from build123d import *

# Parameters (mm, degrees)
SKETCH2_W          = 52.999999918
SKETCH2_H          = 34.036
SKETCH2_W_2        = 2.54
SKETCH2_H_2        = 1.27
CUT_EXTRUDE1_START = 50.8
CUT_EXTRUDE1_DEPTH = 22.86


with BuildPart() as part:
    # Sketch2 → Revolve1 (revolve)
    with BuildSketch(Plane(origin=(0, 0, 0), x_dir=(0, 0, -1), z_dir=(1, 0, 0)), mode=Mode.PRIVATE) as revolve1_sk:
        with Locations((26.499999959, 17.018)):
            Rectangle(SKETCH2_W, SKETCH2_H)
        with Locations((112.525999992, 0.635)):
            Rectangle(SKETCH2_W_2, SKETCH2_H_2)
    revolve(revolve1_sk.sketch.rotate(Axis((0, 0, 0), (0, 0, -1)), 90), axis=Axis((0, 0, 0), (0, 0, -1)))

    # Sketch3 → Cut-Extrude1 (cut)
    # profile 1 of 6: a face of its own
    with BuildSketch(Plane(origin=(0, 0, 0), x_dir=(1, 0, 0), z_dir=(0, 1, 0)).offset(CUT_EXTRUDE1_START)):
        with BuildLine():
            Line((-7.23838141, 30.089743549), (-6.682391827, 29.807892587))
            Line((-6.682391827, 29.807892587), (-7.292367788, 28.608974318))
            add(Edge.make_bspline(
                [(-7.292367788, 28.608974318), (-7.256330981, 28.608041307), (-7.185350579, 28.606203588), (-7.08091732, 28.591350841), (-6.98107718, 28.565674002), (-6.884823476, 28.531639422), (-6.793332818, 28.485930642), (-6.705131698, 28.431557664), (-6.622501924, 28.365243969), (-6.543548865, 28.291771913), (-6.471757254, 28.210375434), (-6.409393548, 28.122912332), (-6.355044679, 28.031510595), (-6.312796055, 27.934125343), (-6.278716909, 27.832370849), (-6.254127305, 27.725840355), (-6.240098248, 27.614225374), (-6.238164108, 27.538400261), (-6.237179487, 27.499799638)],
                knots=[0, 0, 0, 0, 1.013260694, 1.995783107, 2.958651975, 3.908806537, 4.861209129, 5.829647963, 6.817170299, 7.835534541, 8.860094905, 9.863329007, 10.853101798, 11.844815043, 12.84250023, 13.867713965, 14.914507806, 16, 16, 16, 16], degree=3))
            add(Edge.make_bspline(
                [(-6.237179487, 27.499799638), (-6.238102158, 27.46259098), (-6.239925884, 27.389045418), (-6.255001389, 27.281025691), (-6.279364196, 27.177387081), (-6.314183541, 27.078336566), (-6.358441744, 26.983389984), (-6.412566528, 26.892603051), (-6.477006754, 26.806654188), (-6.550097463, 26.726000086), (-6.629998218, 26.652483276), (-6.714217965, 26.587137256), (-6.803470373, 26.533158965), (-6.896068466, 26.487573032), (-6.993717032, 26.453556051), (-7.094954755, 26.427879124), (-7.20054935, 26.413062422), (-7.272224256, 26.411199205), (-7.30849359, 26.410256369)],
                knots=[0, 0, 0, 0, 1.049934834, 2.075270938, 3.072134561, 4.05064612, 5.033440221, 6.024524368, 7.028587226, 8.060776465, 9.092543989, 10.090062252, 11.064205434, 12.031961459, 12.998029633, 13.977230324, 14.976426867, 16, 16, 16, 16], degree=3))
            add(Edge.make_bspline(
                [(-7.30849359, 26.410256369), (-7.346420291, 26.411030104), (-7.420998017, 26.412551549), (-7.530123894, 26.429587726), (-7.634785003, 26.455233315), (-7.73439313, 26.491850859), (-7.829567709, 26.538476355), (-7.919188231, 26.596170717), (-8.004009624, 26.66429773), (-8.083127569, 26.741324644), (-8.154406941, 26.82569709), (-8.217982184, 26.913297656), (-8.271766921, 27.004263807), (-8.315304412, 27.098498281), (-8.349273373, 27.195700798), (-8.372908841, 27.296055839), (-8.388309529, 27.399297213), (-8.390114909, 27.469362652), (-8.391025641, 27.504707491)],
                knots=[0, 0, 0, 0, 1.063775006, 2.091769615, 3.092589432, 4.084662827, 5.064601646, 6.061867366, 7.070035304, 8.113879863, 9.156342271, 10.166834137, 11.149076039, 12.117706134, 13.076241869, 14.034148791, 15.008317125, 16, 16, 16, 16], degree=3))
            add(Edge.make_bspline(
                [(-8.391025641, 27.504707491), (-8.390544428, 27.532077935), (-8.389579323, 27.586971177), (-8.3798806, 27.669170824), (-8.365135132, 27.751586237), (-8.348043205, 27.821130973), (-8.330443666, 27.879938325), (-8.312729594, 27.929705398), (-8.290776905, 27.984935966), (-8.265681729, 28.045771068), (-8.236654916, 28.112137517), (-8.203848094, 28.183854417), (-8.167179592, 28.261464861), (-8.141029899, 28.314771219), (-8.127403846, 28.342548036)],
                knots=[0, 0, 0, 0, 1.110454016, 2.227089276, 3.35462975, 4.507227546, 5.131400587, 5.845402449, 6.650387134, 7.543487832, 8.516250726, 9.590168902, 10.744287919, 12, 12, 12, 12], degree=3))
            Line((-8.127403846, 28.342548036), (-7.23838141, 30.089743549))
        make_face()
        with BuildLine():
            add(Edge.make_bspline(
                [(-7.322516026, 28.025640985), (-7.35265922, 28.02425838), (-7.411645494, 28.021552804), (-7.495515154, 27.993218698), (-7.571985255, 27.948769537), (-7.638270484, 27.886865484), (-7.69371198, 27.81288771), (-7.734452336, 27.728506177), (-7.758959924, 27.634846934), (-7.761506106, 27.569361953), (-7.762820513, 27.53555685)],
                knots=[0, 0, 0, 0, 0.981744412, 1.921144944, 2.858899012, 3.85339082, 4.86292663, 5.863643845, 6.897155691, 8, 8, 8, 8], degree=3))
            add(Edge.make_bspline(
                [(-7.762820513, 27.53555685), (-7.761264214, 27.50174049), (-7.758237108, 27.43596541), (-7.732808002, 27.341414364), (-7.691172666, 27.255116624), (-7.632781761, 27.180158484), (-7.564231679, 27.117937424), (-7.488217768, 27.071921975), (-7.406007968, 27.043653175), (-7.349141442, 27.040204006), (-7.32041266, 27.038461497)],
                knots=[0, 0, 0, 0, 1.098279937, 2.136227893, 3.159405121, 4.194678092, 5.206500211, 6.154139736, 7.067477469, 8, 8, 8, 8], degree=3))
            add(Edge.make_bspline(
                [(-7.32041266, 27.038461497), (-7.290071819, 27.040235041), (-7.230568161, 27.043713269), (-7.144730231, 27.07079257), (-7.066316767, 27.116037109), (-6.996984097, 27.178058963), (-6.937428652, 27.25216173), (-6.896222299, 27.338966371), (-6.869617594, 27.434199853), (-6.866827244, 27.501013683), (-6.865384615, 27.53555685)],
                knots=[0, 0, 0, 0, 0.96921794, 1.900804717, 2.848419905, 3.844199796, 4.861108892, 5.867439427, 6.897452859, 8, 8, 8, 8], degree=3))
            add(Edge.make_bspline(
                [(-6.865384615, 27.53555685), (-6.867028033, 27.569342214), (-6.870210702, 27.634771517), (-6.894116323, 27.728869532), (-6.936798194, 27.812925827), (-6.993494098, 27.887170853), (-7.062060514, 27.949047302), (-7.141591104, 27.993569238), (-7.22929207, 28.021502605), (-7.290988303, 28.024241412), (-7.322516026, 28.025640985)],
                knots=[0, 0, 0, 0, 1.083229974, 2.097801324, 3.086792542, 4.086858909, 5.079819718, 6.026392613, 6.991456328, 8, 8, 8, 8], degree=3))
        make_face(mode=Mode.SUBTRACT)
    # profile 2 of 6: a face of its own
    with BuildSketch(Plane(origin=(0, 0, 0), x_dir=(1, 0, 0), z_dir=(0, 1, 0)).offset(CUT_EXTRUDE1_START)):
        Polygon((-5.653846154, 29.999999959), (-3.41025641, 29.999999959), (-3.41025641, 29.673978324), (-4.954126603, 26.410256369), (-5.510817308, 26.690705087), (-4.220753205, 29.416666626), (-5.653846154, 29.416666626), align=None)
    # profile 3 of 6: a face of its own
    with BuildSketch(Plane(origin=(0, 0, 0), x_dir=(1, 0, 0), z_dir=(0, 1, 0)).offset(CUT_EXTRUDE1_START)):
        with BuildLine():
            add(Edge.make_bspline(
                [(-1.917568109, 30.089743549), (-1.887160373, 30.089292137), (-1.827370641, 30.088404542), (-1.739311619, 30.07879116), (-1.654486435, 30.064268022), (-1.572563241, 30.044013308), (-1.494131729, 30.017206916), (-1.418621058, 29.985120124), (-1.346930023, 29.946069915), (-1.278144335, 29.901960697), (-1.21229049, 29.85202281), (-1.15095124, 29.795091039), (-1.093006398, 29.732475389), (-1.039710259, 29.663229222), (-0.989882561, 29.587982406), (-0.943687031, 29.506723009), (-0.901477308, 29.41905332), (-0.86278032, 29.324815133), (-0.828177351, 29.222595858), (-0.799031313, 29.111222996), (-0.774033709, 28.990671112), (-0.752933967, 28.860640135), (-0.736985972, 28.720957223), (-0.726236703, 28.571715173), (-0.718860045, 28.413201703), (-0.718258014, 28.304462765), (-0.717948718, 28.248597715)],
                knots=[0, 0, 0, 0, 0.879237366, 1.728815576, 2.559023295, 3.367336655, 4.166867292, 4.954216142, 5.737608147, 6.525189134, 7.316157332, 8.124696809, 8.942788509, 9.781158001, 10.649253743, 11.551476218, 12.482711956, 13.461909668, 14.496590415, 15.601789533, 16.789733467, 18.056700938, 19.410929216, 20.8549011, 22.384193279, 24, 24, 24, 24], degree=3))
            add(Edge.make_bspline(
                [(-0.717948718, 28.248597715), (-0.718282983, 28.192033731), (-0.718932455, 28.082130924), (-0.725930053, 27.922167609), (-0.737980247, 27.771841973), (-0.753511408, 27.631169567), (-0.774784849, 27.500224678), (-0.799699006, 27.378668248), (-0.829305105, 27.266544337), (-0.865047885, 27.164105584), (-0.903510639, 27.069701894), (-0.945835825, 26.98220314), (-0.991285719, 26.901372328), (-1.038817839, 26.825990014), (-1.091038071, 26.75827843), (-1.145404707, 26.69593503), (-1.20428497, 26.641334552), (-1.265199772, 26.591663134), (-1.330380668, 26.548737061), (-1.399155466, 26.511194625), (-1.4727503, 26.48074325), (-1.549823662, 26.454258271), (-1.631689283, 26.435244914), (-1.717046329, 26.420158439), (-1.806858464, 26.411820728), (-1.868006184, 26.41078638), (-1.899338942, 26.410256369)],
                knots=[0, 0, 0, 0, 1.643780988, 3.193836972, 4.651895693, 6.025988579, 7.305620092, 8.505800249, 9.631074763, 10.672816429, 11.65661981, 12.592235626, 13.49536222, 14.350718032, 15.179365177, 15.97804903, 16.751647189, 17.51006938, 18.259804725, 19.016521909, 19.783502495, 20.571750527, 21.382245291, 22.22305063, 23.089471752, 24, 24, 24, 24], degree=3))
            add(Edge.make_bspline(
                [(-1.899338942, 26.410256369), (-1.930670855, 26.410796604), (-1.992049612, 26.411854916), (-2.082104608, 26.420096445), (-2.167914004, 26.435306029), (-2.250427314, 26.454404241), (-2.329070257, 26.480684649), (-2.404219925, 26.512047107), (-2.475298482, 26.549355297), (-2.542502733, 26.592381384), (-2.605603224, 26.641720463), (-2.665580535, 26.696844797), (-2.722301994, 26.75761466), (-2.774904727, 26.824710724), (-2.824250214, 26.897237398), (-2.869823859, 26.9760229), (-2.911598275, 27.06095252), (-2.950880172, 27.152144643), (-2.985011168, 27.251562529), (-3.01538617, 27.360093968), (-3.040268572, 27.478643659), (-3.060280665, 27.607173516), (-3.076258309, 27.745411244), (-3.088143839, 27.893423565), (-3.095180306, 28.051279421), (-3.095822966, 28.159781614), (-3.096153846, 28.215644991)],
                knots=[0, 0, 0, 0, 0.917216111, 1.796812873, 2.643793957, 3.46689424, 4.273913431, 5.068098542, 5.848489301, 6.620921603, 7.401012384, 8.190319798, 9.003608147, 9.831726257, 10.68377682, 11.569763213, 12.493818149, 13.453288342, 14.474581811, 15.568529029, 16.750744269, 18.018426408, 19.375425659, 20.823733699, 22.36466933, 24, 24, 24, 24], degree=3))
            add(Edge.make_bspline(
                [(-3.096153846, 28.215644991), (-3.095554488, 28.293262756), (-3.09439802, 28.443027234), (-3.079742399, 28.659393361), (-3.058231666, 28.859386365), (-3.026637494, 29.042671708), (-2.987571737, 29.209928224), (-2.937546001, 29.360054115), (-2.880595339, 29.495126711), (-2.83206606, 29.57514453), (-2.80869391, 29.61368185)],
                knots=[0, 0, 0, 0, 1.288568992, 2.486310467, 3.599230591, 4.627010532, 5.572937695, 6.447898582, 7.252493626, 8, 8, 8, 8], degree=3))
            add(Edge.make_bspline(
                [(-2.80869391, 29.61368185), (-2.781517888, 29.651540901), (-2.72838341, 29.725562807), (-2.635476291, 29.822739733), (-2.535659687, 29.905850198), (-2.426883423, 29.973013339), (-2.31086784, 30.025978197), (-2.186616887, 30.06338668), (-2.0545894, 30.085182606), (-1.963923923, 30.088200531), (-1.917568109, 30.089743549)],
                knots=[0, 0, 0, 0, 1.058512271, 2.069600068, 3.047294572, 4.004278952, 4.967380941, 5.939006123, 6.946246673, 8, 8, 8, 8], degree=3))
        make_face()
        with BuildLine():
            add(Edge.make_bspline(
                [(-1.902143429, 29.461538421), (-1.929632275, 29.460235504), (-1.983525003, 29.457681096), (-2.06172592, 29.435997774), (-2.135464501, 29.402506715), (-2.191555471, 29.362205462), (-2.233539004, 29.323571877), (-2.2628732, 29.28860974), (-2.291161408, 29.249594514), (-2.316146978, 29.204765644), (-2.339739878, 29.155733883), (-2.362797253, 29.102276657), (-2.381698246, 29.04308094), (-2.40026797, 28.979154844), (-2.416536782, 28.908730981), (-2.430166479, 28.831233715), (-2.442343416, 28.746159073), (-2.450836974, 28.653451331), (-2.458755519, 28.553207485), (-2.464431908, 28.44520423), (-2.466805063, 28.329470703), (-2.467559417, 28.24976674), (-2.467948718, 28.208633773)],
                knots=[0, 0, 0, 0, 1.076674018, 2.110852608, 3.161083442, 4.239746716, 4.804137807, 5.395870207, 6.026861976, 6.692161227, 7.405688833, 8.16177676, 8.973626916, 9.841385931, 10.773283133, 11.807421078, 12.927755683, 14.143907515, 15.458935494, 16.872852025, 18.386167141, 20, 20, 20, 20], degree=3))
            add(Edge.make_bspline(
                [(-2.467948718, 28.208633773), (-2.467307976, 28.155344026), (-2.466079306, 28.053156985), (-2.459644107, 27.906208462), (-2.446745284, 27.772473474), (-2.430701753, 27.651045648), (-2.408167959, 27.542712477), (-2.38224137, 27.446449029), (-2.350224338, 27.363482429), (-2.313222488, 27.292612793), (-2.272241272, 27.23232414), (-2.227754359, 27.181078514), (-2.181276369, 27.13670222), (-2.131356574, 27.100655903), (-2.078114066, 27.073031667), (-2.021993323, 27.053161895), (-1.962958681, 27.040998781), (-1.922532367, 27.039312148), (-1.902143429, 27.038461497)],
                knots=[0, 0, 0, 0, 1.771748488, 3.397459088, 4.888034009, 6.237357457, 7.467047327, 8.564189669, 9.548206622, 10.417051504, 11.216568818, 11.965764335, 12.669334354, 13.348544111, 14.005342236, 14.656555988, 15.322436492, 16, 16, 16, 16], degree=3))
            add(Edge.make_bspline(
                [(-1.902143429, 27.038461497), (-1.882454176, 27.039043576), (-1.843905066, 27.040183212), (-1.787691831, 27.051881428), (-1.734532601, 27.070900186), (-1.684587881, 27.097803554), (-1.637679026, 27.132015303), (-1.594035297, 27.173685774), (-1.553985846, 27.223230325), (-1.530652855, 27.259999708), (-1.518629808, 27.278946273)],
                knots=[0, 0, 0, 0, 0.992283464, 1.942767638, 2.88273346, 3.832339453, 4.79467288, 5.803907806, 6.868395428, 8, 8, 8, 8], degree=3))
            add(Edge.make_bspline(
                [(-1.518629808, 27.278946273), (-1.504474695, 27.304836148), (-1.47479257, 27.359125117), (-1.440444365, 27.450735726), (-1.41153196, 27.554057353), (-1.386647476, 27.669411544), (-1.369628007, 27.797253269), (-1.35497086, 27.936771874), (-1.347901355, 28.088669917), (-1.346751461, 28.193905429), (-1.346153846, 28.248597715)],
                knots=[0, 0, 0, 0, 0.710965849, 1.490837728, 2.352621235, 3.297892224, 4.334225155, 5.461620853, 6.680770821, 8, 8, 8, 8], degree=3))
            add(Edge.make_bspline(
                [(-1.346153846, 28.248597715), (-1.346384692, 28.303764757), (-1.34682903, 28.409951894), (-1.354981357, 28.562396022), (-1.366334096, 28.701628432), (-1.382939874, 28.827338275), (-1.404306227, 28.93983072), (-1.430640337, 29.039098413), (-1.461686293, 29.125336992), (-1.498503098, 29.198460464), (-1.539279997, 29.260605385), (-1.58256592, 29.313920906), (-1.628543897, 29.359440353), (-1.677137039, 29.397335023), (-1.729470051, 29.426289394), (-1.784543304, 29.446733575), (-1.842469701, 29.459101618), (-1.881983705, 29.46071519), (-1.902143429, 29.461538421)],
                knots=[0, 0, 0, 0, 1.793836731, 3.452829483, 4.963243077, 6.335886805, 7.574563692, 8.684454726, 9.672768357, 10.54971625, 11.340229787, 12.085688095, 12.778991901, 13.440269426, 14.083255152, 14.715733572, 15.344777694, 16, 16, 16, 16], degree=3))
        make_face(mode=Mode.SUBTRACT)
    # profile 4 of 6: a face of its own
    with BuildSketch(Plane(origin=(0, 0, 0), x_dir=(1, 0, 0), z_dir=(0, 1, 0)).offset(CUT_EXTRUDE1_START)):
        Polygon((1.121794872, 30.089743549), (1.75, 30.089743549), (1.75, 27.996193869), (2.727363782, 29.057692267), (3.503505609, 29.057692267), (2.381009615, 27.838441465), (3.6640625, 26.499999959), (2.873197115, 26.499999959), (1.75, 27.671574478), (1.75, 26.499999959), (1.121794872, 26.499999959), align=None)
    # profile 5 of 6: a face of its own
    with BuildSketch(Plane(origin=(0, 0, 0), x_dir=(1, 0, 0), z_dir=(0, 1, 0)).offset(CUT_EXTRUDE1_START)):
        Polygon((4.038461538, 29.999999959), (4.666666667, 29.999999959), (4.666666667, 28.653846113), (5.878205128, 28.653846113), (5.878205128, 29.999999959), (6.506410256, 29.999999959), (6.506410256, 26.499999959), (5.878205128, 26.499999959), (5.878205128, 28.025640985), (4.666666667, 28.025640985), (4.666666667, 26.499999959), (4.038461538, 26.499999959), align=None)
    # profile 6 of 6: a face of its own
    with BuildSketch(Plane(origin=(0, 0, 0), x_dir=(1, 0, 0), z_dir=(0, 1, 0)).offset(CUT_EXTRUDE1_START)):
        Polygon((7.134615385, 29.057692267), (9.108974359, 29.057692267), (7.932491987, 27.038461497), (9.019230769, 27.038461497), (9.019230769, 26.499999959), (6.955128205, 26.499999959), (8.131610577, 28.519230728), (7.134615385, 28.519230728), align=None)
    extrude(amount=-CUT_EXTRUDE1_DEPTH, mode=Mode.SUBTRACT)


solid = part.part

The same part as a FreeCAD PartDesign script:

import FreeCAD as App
import Part
import Sketcher

V = App.Vector
Q = App.Units.Quantity


def add_polygon(sketch, points):
    """Adds a closed chain of lines whose ends are joined by coincident constraints."""
    first, n = sketch.GeometryCount, len(points)
    for a, b in zip(points, points[1:] + points[:1]):
        sketch.addGeometry(Part.LineSegment(App.Vector(*a, 0), App.Vector(*b, 0)), False)
    for i in range(n):
        sketch.addConstraint(Sketcher.Constraint("Coincident", first + i, 2, first + (i + 1) % n, 1))

doc = App.newDocument("Part")
body = doc.addObject("PartDesign::Body", "Body")
body.AllowCompound = True

# Sketch on YZ plane
sketch1 = doc.addObject("Sketcher::SketchObject", "Sketch")
body.addObject(sketch1)
sketch1.AttachmentSupport = (doc.YZ_Plane, [""])
sketch1.MapMode = "FlatFace"
add_polygon(sketch1, [(34.036, 0), (0, 0), (0, -53), (34.036, -53)])  # lines 0-3
add_polygon(sketch1, [(1.27, -111.256), (0, -111.256), (0, -113.796), (1.27, -113.796)])  # lines 4-7
sketch1.addConstraint([
    Sketcher.Constraint("Horizontal", 0),
    Sketcher.Constraint("Vertical", 1),
    Sketcher.Constraint("Horizontal", 2),
    Sketcher.Constraint("Vertical", 3),
    Sketcher.Constraint("Horizontal", 4),
    Sketcher.Constraint("Vertical", 5),
    Sketcher.Constraint("Horizontal", 6),
    Sketcher.Constraint("Vertical", 7),
    Sketcher.Constraint("Coincident", 0, 2, -1, 1),
    Sketcher.Constraint("PointOnObject", 4, 2, -2),
    Sketcher.Constraint("DistanceY", 5, 2, 5, 1, Q("0.1 in")),
    Sketcher.Constraint("DistanceX", 0, 2, 0, 1, Q("1.34 in")),
    Sketcher.Constraint("DistanceX", 4, 2, 4, 1, Q("0.05 in")),
    Sketcher.Constraint("DistanceY", 1, 2, 1, 1, Q("53 mm")),
    Sketcher.Constraint("DistanceY", 4, 2, -1, 1, Q("111.256 mm")),
])
revolution = doc.addObject("PartDesign::Revolution", "Revolution")
body.addObject(revolution)
revolution.Profile = sketch1
revolution.ReferenceAxis = (sketch1, ["V_Axis"])
revolution.Angle = 360

# Sketch on XZ plane
sketch2 = doc.addObject("Sketcher::SketchObject", "Sketch001")
body.addObject(sketch2)
sketch2.AttachmentSupport = (doc.XZ_Plane, [""])
sketch2.MapMode = "FlatFace"
sketch2.AttachmentOffset = App.Placement(V(0, 0, -2 * 25.4), App.Rotation())
sketch2.addGeometry(Part.LineSegment(V(-6.682392, -29.807893, 0), V(-7.238381, -30.089744, 0)), False)  # 0
sketch2.addGeometry(Part.LineSegment(V(-7.238381, -30.089744, 0), V(-8.127404, -28.342548, 0)), False)  # 1
sketch2.addGeometry(Part.BSplineCurve([V(-8.391026, -27.504707, 0), V(-8.390544, -27.532078, 0), V(-8.389579, -27.586971, 0), V(-8.379881, -27.669171, 0), V(-8.365135, -27.751586, 0), V(-8.348043, -27.821131, 0), V(-8.330444, -27.879938, 0), V(-8.31273, -27.929705, 0), V(-8.290777, -27.984936, 0), V(-8.265682, -28.045771, 0), V(-8.236655, -28.112138, 0), V(-8.203848, -28.183854, 0), V(-8.16718, -28.261465, 0), V(-8.14103, -28.314771, 0), V(-8.127404, -28.342548, 0)], [4, 1, 1, 1, 1, 1, 1, 1, 1, 1, 1, 1, 4], [0, 1.110454016, 2.227089276, 3.35462975, 4.507227546, 5.131400587, 5.845402449, 6.650387134, 7.543487832, 8.516250726, 9.590168902, 10.744287919, 12], False, 3, [1, 1, 1, 1, 1, 1, 1, 1, 1, 1, 1, 1, 1, 1, 1], False), False)  # 2
sketch2.addGeometry(Part.BSplineCurve([V(-7.308494, -26.410256, 0), V(-7.34642, -26.41103, 0), V(-7.420998, -26.412552, 0), V(-7.530124, -26.429588, 0), V(-7.634785, -26.455233, 0), V(-7.734393, -26.491851, 0), V(-7.829568, -26.538476, 0), V(-7.919188, -26.596171, 0), V(-8.00401, -26.664298, 0), V(-8.083128, -26.741325, 0), V(-8.154407, -26.825697, 0), V(-8.217982, -26.913298, 0), V(-8.271767, -27.004264, 0), V(-8.315304, -27.098498, 0), V(-8.349273, -27.195701, 0), V(-8.372909, -27.296056, 0), V(-8.38831, -27.399297, 0), V(-8.390115, -27.469363, 0), V(-8.391026, -27.504707, 0)], [4, 1, 1, 1, 1, 1, 1, 1, 1, 1, 1, 1, 1, 1, 1, 1, 4], [0, 1.063775006, 2.091769615, 3.092589432, 4.084662827, 5.064601646, 6.061867366, 7.070035304, 8.113879863, 9.156342271, 10.166834137, 11.149076039, 12.117706134, 13.076241869, 14.034148791, 15.008317125, 16], False, 3, [1, 1, 1, 1, 1, 1, 1, 1, 1, 1, 1, 1, 1, 1, 1, 1, 1, 1, 1], False), False)  # 3
sketch2.addGeometry(Part.BSplineCurve([V(-6.237179, -27.4998, 0), V(-6.238102, -27.462591, 0), V(-6.239926, -27.389045, 0), V(-6.255001, -27.281026, 0), V(-6.279364, -27.177387, 0), V(-6.314184, -27.078337, 0), V(-6.358442, -26.98339, 0), V(-6.412567, -26.892603, 0), V(-6.477007, -26.806654, 0), V(-6.550097, -26.726, 0), V(-6.629998, -26.652483, 0), V(-6.714218, -26.587137, 0), V(-6.80347, -26.533159, 0), V(-6.896068, -26.487573, 0), V(-6.993717, -26.453556, 0), V(-7.094955, -26.427879, 0), V(-7.200549, -26.413062, 0), V(-7.272224, -26.411199, 0), V(-7.308494, -26.410256, 0)], [4, 1, 1, 1, 1, 1, 1, 1, 1, 1, 1, 1, 1, 1, 1, 1, 4], [0, 1.049934834, 2.075270938, 3.072134561, 4.05064612, 5.033440221, 6.024524368, 7.028587226, 8.060776465, 9.092543989, 10.090062252, 11.064205434, 12.031961459, 12.998029633, 13.977230324, 14.976426867, 16], False, 3, [1, 1, 1, 1, 1, 1, 1, 1, 1, 1, 1, 1, 1, 1, 1, 1, 1, 1, 1], False), False)  # 4
sketch2.addGeometry(Part.BSplineCurve([V(-7.292368, -28.608974, 0), V(-7.256331, -28.608041, 0), V(-7.185351, -28.606204, 0), V(-7.080917, -28.591351, 0), V(-6.981077, -28.565674, 0), V(-6.884823, -28.531639, 0), V(-6.793333, -28.485931, 0), V(-6.705132, -28.431558, 0), V(-6.622502, -28.365244, 0), V(-6.543549, -28.291772, 0), V(-6.471757, -28.210375, 0), V(-6.409394, -28.122912, 0), V(-6.355045, -28.031511, 0), V(-6.312796, -27.934125, 0), V(-6.278717, -27.832371, 0), V(-6.254127, -27.72584, 0), V(-6.240098, -27.614225, 0), V(-6.238164, -27.5384, 0), V(-6.237179, -27.4998, 0)], [4, 1, 1, 1, 1, 1, 1, 1, 1, 1, 1, 1, 1, 1, 1, 1, 4], [0, 1.013260694, 1.995783107, 2.958651975, 3.908806537, 4.861209129, 5.829647963, 6.817170299, 7.835534541, 8.860094905, 9.863329007, 10.853101798, 11.844815043, 12.84250023, 13.867713965, 14.914507806, 16], False, 3, [1, 1, 1, 1, 1, 1, 1, 1, 1, 1, 1, 1, 1, 1, 1, 1, 1, 1, 1], False), False)  # 5
sketch2.addGeometry(Part.LineSegment(V(-7.292368, -28.608974, 0), V(-6.682392, -29.807893, 0)), False)  # 6
sketch2.addGeometry(Part.BSplineCurve([V(-6.865385, -27.535557, 0), V(-6.867028, -27.569342, 0), V(-6.870211, -27.634772, 0), V(-6.894116, -27.72887, 0), V(-6.936798, -27.812926, 0), V(-6.993494, -27.887171, 0), V(-7.062061, -27.949047, 0), V(-7.141591, -27.993569, 0), V(-7.229292, -28.021503, 0), V(-7.290988, -28.024241, 0), V(-7.322516, -28.025641, 0)], [4, 1, 1, 1, 1, 1, 1, 1, 4], [0, 1.083229974, 2.097801324, 3.086792542, 4.086858909, 5.079819718, 6.026392613, 6.991456328, 8], False, 3, [1, 1, 1, 1, 1, 1, 1, 1, 1, 1, 1], False), False)  # 7
sketch2.addGeometry(Part.BSplineCurve([V(-7.320413, -27.038461, 0), V(-7.290072, -27.040235, 0), V(-7.230568, -27.043713, 0), V(-7.14473, -27.070793, 0), V(-7.066317, -27.116037, 0), V(-6.996984, -27.178059, 0), V(-6.937429, -27.252162, 0), V(-6.896222, -27.338966, 0), V(-6.869618, -27.4342, 0), V(-6.866827, -27.501014, 0), V(-6.865385, -27.535557, 0)], [4, 1, 1, 1, 1, 1, 1, 1, 4], [0, 0.96921794, 1.900804717, 2.848419905, 3.844199796, 4.861108892, 5.867439427, 6.897452859, 8], False, 3, [1, 1, 1, 1, 1, 1, 1, 1, 1, 1, 1], False), False)  # 8
sketch2.addGeometry(Part.BSplineCurve([V(-7.762821, -27.535557, 0), V(-7.761264, -27.50174, 0), V(-7.758237, -27.435965, 0), V(-7.732808, -27.341414, 0), V(-7.691173, -27.255117, 0), V(-7.632782, -27.180158, 0), V(-7.564232, -27.117937, 0), V(-7.488218, -27.071922, 0), V(-7.406008, -27.043653, 0), V(-7.349141, -27.040204, 0), V(-7.320413, -27.038461, 0)], [4, 1, 1, 1, 1, 1, 1, 1, 4], [0, 1.098279937, 2.136227893, 3.159405121, 4.194678092, 5.206500211, 6.154139736, 7.067477469, 8], False, 3, [1, 1, 1, 1, 1, 1, 1, 1, 1, 1, 1], False), False)  # 9
sketch2.addGeometry(Part.BSplineCurve([V(-7.322516, -28.025641, 0), V(-7.352659, -28.024258, 0), V(-7.411645, -28.021553, 0), V(-7.495515, -27.993219, 0), V(-7.571985, -27.94877, 0), V(-7.63827, -27.886865, 0), V(-7.693712, -27.812888, 0), V(-7.734452, -27.728506, 0), V(-7.75896, -27.634847, 0), V(-7.761506, -27.569362, 0), V(-7.762821, -27.535557, 0)], [4, 1, 1, 1, 1, 1, 1, 1, 4], [0, 0.981744412, 1.921144944, 2.858899012, 3.85339082, 4.86292663, 5.863643845, 6.897155691, 8], False, 3, [1, 1, 1, 1, 1, 1, 1, 1, 1, 1, 1], False), False)  # 10
add_polygon(sketch2, [(-3.410256, -30), (-5.653846, -30), (-5.653846, -29.416667), (-4.220753, -29.416667), (-5.510817, -26.690705), (-4.954127, -26.410256), (-3.410256, -29.673978)])  # lines 11-17
sketch2.addGeometry(Part.BSplineCurve([V(-1.917568, -30.089744, 0), V(-1.88716, -30.089292, 0), V(-1.827371, -30.088405, 0), V(-1.739312, -30.078791, 0), V(-1.654486, -30.064268, 0), V(-1.572563, -30.044013, 0), V(-1.494132, -30.017207, 0), V(-1.418621, -29.98512, 0), V(-1.34693, -29.94607, 0), V(-1.278144, -29.901961, 0), V(-1.21229, -29.852023, 0), V(-1.150951, -29.795091, 0), V(-1.093006, -29.732475, 0), V(-1.03971, -29.663229, 0), V(-0.989883, -29.587982, 0), V(-0.943687, -29.506723, 0), V(-0.901477, -29.419053, 0), V(-0.86278, -29.324815, 0), V(-0.828177, -29.222596, 0), V(-0.799031, -29.111223, 0), V(-0.774034, -28.990671, 0), V(-0.752934, -28.86064, 0), V(-0.736986, -28.720957, 0), V(-0.726237, -28.571715, 0), V(-0.71886, -28.413202, 0), V(-0.718258, -28.304463, 0), V(-0.717949, -28.248598, 0)], [4, 1, 1, 1, 1, 1, 1, 1, 1, 1, 1, 1, 1, 1, 1, 1, 1, 1, 1, 1, 1, 1, 1, 1, 4], [0, 0.879237366, 1.728815576, 2.559023295, 3.367336655, 4.166867292, 4.954216142, 5.737608147, 6.525189134, 7.316157332, 8.124696809, 8.942788509, 9.781158001, 10.649253743, 11.551476218, 12.482711956, 13.461909668, 14.496590415, 15.601789533, 16.789733467, 18.056700938, 19.410929216, 20.8549011, 22.384193279, 24], False, 3, [1, 1, 1, 1, 1, 1, 1, 1, 1, 1, 1, 1, 1, 1, 1, 1, 1, 1, 1, 1, 1, 1, 1, 1, 1, 1, 1], False), False)  # 18
sketch2.addGeometry(Part.BSplineCurve([V(-2.808694, -29.613682, 0), V(-2.781518, -29.651541, 0), V(-2.728383, -29.725563, 0), V(-2.635476, -29.82274, 0), V(-2.53566, -29.90585, 0), V(-2.426883, -29.973013, 0), V(-2.310868, -30.025978, 0), V(-2.186617, -30.063387, 0), V(-2.054589, -30.085183, 0), V(-1.963924, -30.088201, 0), V(-1.917568, -30.089744, 0)], [4, 1, 1, 1, 1, 1, 1, 1, 4], [0, 1.058512271, 2.069600068, 3.047294572, 4.004278952, 4.967380941, 5.939006123, 6.946246673, 8], False, 3, [1, 1, 1, 1, 1, 1, 1, 1, 1, 1, 1], False), False)  # 19
sketch2.addGeometry(Part.BSplineCurve([V(-3.096154, -28.215645, 0), V(-3.095554, -28.293263, 0), V(-3.094398, -28.443027, 0), V(-3.079742, -28.659393, 0), V(-3.058232, -28.859386, 0), V(-3.026637, -29.042672, 0), V(-2.987572, -29.209928, 0), V(-2.937546, -29.360054, 0), V(-2.880595, -29.495127, 0), V(-2.832066, -29.575145, 0), V(-2.808694, -29.613682, 0)], [4, 1, 1, 1, 1, 1, 1, 1, 4], [0, 1.288568992, 2.486310467, 3.599230591, 4.627010532, 5.572937695, 6.447898582, 7.252493626, 8], False, 3, [1, 1, 1, 1, 1, 1, 1, 1, 1, 1, 1], False), False)  # 20
sketch2.addGeometry(Part.BSplineCurve([V(-1.899339, -26.410256, 0), V(-1.930671, -26.410797, 0), V(-1.99205, -26.411855, 0), V(-2.082105, -26.420096, 0), V(-2.167914, -26.435306, 0), V(-2.250427, -26.454404, 0), V(-2.32907, -26.480685, 0), V(-2.40422, -26.512047, 0), V(-2.475298, -26.549355, 0), V(-2.542503, -26.592381, 0), V(-2.605603, -26.64172, 0), V(-2.665581, -26.696845, 0), V(-2.722302, -26.757615, 0), V(-2.774905, -26.824711, 0), V(-2.82425, -26.897237, 0), V(-2.869824, -26.976023, 0), V(-2.911598, -27.060953, 0), V(-2.95088, -27.152145, 0), V(-2.985011, -27.251563, 0), V(-3.015386, -27.360094, 0), V(-3.040269, -27.478644, 0), V(-3.060281, -27.607174, 0), V(-3.076258, -27.745411, 0), V(-3.088144, -27.893424, 0), V(-3.09518, -28.051279, 0), V(-3.095823, -28.159782, 0), V(-3.096154, -28.215645, 0)], [4, 1, 1, 1, 1, 1, 1, 1, 1, 1, 1, 1, 1, 1, 1, 1, 1, 1, 1, 1, 1, 1, 1, 1, 4], [0, 0.917216111, 1.796812873, 2.643793957, 3.46689424, 4.273913431, 5.068098542, 5.848489301, 6.620921603, 7.401012384, 8.190319798, 9.003608147, 9.831726257, 10.68377682, 11.569763213, 12.493818149, 13.453288342, 14.474581811, 15.568529029, 16.750744269, 18.018426408, 19.375425659, 20.823733699, 22.36466933, 24], False, 3, [1, 1, 1, 1, 1, 1, 1, 1, 1, 1, 1, 1, 1, 1, 1, 1, 1, 1, 1, 1, 1, 1, 1, 1, 1, 1, 1], False), False)  # 21
sketch2.addGeometry(Part.BSplineCurve([V(-0.717949, -28.248598, 0), V(-0.718283, -28.192034, 0), V(-0.718932, -28.082131, 0), V(-0.72593, -27.922168, 0), V(-0.73798, -27.771842, 0), V(-0.753511, -27.63117, 0), V(-0.774785, -27.500225, 0), V(-0.799699, -27.378668, 0), V(-0.829305, -27.266544, 0), V(-0.865048, -27.164106, 0), V(-0.903511, -27.069702, 0), V(-0.945836, -26.982203, 0), V(-0.991286, -26.901372, 0), V(-1.038818, -26.82599, 0), V(-1.091038, -26.758278, 0), V(-1.145405, -26.695935, 0), V(-1.204285, -26.641335, 0), V(-1.2652, -26.591663, 0), V(-1.330381, -26.548737, 0), V(-1.399155, -26.511195, 0), V(-1.47275, -26.480743, 0), V(-1.549824, -26.454258, 0), V(-1.631689, -26.435245, 0), V(-1.717046, -26.420158, 0), V(-1.806858, -26.411821, 0), V(-1.868006, -26.410786, 0), V(-1.899339, -26.410256, 0)], [4, 1, 1, 1, 1, 1, 1, 1, 1, 1, 1, 1, 1, 1, 1, 1, 1, 1, 1, 1, 1, 1, 1, 1, 4], [0, 1.643780988, 3.193836972, 4.651895693, 6.025988579, 7.305620092, 8.505800249, 9.631074763, 10.672816429, 11.65661981, 12.592235626, 13.49536222, 14.350718032, 15.179365177, 15.97804903, 16.751647189, 17.51006938, 18.259804725, 19.016521909, 19.783502495, 20.571750527, 21.382245291, 22.22305063, 23.089471752, 24], False, 3, [1, 1, 1, 1, 1, 1, 1, 1, 1, 1, 1, 1, 1, 1, 1, 1, 1, 1, 1, 1, 1, 1, 1, 1, 1, 1, 1], False), False)  # 22
sketch2.addGeometry(Part.BSplineCurve([V(-1.346154, -28.248598, 0), V(-1.346385, -28.303765, 0), V(-1.346829, -28.409952, 0), V(-1.354981, -28.562396, 0), V(-1.366334, -28.701628, 0), V(-1.38294, -28.827338, 0), V(-1.404306, -28.939831, 0), V(-1.43064, -29.039098, 0), V(-1.461686, -29.125337, 0), V(-1.498503, -29.19846, 0), V(-1.53928, -29.260605, 0), V(-1.582566, -29.313921, 0), V(-1.628544, -29.35944, 0), V(-1.677137, -29.397335, 0), V(-1.72947, -29.426289, 0), V(-1.784543, -29.446734, 0), V(-1.84247, -29.459102, 0), V(-1.881984, -29.460715, 0), V(-1.902143, -29.461538, 0)], [4, 1, 1, 1, 1, 1, 1, 1, 1, 1, 1, 1, 1, 1, 1, 1, 4], [0, 1.793836731, 3.452829483, 4.963243077, 6.335886805, 7.574563692, 8.684454726, 9.672768357, 10.54971625, 11.340229787, 12.085688095, 12.778991901, 13.440269426, 14.083255152, 14.715733572, 15.344777694, 16], False, 3, [1, 1, 1, 1, 1, 1, 1, 1, 1, 1, 1, 1, 1, 1, 1, 1, 1, 1, 1], False), False)  # 23
sketch2.addGeometry(Part.BSplineCurve([V(-1.51863, -27.278946, 0), V(-1.504475, -27.304836, 0), V(-1.474793, -27.359125, 0), V(-1.440444, -27.450736, 0), V(-1.411532, -27.554057, 0), V(-1.386647, -27.669412, 0), V(-1.369628, -27.797253, 0), V(-1.354971, -27.936772, 0), V(-1.347901, -28.08867, 0), V(-1.346751, -28.193905, 0), V(-1.346154, -28.248598, 0)], [4, 1, 1, 1, 1, 1, 1, 1, 4], [0, 0.710965849, 1.490837728, 2.352621235, 3.297892224, 4.334225155, 5.461620853, 6.680770821, 8], False, 3, [1, 1, 1, 1, 1, 1, 1, 1, 1, 1, 1], False), False)  # 24
sketch2.addGeometry(Part.BSplineCurve([V(-1.902143, -27.038461, 0), V(-1.882454, -27.039044, 0), V(-1.843905, -27.040183, 0), V(-1.787692, -27.051881, 0), V(-1.734533, -27.0709, 0), V(-1.684588, -27.097804, 0), V(-1.637679, -27.132015, 0), V(-1.594035, -27.173686, 0), V(-1.553986, -27.22323, 0), V(-1.530653, -27.26, 0), V(-1.51863, -27.278946, 0)], [4, 1, 1, 1, 1, 1, 1, 1, 4], [0, 0.992283464, 1.942767638, 2.88273346, 3.832339453, 4.79467288, 5.803907806, 6.868395428, 8], False, 3, [1, 1, 1, 1, 1, 1, 1, 1, 1, 1, 1], False), False)  # 25
sketch2.addGeometry(Part.BSplineCurve([V(-2.467949, -28.208634, 0), V(-2.467308, -28.155344, 0), V(-2.466079, -28.053157, 0), V(-2.459644, -27.906208, 0), V(-2.446745, -27.772473, 0), V(-2.430702, -27.651046, 0), V(-2.408168, -27.542712, 0), V(-2.382241, -27.446449, 0), V(-2.350224, -27.363482, 0), V(-2.313222, -27.292613, 0), V(-2.272241, -27.232324, 0), V(-2.227754, -27.181079, 0), V(-2.181276, -27.136702, 0), V(-2.131357, -27.100656, 0), V(-2.078114, -27.073032, 0), V(-2.021993, -27.053162, 0), V(-1.962959, -27.040999, 0), V(-1.922532, -27.039312, 0), V(-1.902143, -27.038461, 0)], [4, 1, 1, 1, 1, 1, 1, 1, 1, 1, 1, 1, 1, 1, 1, 1, 4], [0, 1.771748488, 3.397459088, 4.888034009, 6.237357457, 7.467047327, 8.564189669, 9.548206622, 10.417051504, 11.216568818, 11.965764335, 12.669334354, 13.348544111, 14.005342236, 14.656555988, 15.322436492, 16], False, 3, [1, 1, 1, 1, 1, 1, 1, 1, 1, 1, 1, 1, 1, 1, 1, 1, 1, 1, 1], False), False)  # 26
sketch2.addGeometry(Part.BSplineCurve([V(-1.902143, -29.461538, 0), V(-1.929632, -29.460236, 0), V(-1.983525, -29.457681, 0), V(-2.061726, -29.435998, 0), V(-2.135465, -29.402507, 0), V(-2.191555, -29.362205, 0), V(-2.233539, -29.323572, 0), V(-2.262873, -29.28861, 0), V(-2.291161, -29.249595, 0), V(-2.316147, -29.204766, 0), V(-2.33974, -29.155734, 0), V(-2.362797, -29.102277, 0), V(-2.381698, -29.043081, 0), V(-2.400268, -28.979155, 0), V(-2.416537, -28.908731, 0), V(-2.430166, -28.831234, 0), V(-2.442343, -28.746159, 0), V(-2.450837, -28.653451, 0), V(-2.458756, -28.553207, 0), V(-2.464432, -28.445204, 0), V(-2.466805, -28.329471, 0), V(-2.467559, -28.249767, 0), V(-2.467949, -28.208634, 0)], [4, 1, 1, 1, 1, 1, 1, 1, 1, 1, 1, 1, 1, 1, 1, 1, 1, 1, 1, 1, 4], [0, 1.076674018, 2.110852608, 3.161083442, 4.239746716, 4.804137807, 5.395870207, 6.026861976, 6.692161227, 7.405688833, 8.16177676, 8.973626916, 9.841385931, 10.773283133, 11.807421078, 12.927755683, 14.143907515, 15.458935494, 16.872852025, 18.386167141, 20], False, 3, [1, 1, 1, 1, 1, 1, 1, 1, 1, 1, 1, 1, 1, 1, 1, 1, 1, 1, 1, 1, 1, 1, 1], False), False)  # 27
add_polygon(sketch2, [(1.75, -30.089744), (1.121795, -30.089744), (1.121795, -26.5), (1.75, -26.5), (1.75, -27.671574), (2.873197, -26.5), (3.664062, -26.5), (2.38101, -27.838441), (3.503506, -29.057692), (2.727364, -29.057692), (1.75, -27.996194)])  # lines 28-38
add_polygon(sketch2, [(4.666667, -30), (4.038462, -30), (4.038462, -26.5), (4.666667, -26.5), (4.666667, -28.025641), (5.878205, -28.025641), (5.878205, -26.5), (6.50641, -26.5), (6.50641, -30), (5.878205, -30), (5.878205, -28.653846), (4.666667, -28.653846)])  # lines 39-50
add_polygon(sketch2, [(9.108974, -29.057692), (7.134615, -29.057692), (7.134615, -28.519231), (8.131611, -28.519231), (6.955128, -26.5), (9.019231, -26.5), (9.019231, -27.038461), (7.932492, -27.038461)])  # lines 51-58
sketch2.addConstraint([
    Sketcher.Constraint("Block", 2),
    Sketcher.Constraint("Block", 3),
    Sketcher.Constraint("Block", 4),
    Sketcher.Constraint("Block", 5),
    Sketcher.Constraint("Block", 7),
    Sketcher.Constraint("Block", 8),
    Sketcher.Constraint("Block", 9),
    Sketcher.Constraint("Block", 10),
    Sketcher.Constraint("Block", 18),
    Sketcher.Constraint("Block", 19),
    Sketcher.Constraint("Block", 20),
    Sketcher.Constraint("Block", 21),
    Sketcher.Constraint("Block", 22),
    Sketcher.Constraint("Block", 23),
    Sketcher.Constraint("Block", 24),
    Sketcher.Constraint("Block", 25),
    Sketcher.Constraint("Block", 26),
    Sketcher.Constraint("Block", 27),
    Sketcher.Constraint("Coincident", 0, 2, 1, 1),
    Sketcher.Constraint("Coincident", 1, 2, 2, 2),
    Sketcher.Constraint("Coincident", 5, 1, 6, 1),
    Sketcher.Constraint("Coincident", 6, 2, 0, 1),
    Sketcher.Constraint("Horizontal", 11),
    Sketcher.Constraint("Vertical", 12),
    Sketcher.Constraint("Horizontal", 13),
    Sketcher.Constraint("Vertical", 17),
    Sketcher.Constraint("Horizontal", 28),
    Sketcher.Constraint("Vertical", 29),
    Sketcher.Constraint("Horizontal", 30),
    Sketcher.Constraint("Vertical", 31),
    Sketcher.Constraint("Horizontal", 33),
    Sketcher.Constraint("Horizontal", 36),
    Sketcher.Constraint("Vertical", 38),
    Sketcher.Constraint("Horizontal", 39),
    Sketcher.Constraint("Vertical", 40),
    Sketcher.Constraint("Horizontal", 41),
    Sketcher.Constraint("Vertical", 42),
    Sketcher.Constraint("Horizontal", 43),
    Sketcher.Constraint("Vertical", 44),
    Sketcher.Constraint("Horizontal", 45),
    Sketcher.Constraint("Vertical", 46),
    Sketcher.Constraint("Horizontal", 47),
    Sketcher.Constraint("Vertical", 48),
    Sketcher.Constraint("Horizontal", 49),
    Sketcher.Constraint("Vertical", 50),
    Sketcher.Constraint("Horizontal", 51),
    Sketcher.Constraint("Vertical", 52),
    Sketcher.Constraint("Horizontal", 53),
    Sketcher.Constraint("Horizontal", 55),
    Sketcher.Constraint("Vertical", 56),
    Sketcher.Constraint("Horizontal", 57),
    Sketcher.Constraint("DistanceY", 40, 1, 40, 2, Q("3.5 mm")),
    Sketcher.Constraint("DistanceY", 46, 2, 46, 1, Q("3.5 mm")),
    Sketcher.Constraint("DistanceY", 48, 2, 52, 2, Q("0.0052998 in")),
    Sketcher.Constraint("DistanceX", 11, 2, 11, 1, Q("2.24359 mm")),
    Sketcher.Constraint("DistanceX", 36, 2, 36, 1, Q("0.776142 mm")),
    Sketcher.Constraint("DistanceX", 43, 1, 43, 2, Q("1.211538 mm")),
    Sketcher.Constraint("DistanceX", 49, 2, 49, 1, Q("1.211538 mm")),
    Sketcher.Constraint("DistanceX", 51, 2, 51, 1, Q("1.974359 mm")),
    Sketcher.Constraint("DistanceX", 57, 2, 57, 1, Q("1.086739 mm")),
    Sketcher.Constraint("DistanceY", 17, 2, 17, 1, Q("0.326022 mm")),
    Sketcher.Constraint("DistanceY", 38, 2, 38, 1, Q("2.09355 mm")),
    Sketcher.Constraint("DistanceY", 42, 2, 42, 1, Q("1.525641 mm")),
    Sketcher.Constraint("DistanceY", 44, 1, 44, 2, Q("1.525641 mm")),
    Sketcher.Constraint("DistanceY", 52, 1, 52, 2, Q("0.538462 mm")),
    Sketcher.Constraint("DistanceY", 56, 2, 56, 1, Q("0.538462 mm")),
    Sketcher.Constraint("DistanceY", 11, 2, -1, 1, Q("30 mm")),
    Sketcher.Constraint("DistanceY", 29, 2, -1, 1, Q("26.5 mm")),
    Sketcher.Constraint("DistanceX", -1, 1, 30, 2, Q("1.75 mm")),
    Sketcher.Constraint("DistanceY", 32, 2, -1, 1, Q("26.5 mm")),
    Sketcher.Constraint("DistanceX", -1, 1, 37, 2, Q("1.75 mm")),
    Sketcher.Constraint("DistanceY", 39, 2, -1, 1, Q("30 mm")),
    Sketcher.Constraint("DistanceY", 54, 2, -1, 1, Q("26.5 mm")),
    Sketcher.Constraint("DistanceY", 36, 2, 37, 2, Q("1.061498 mm")),
    Sketcher.Constraint("DistanceX", 33, 2, 40, 2, Q("0.374399 mm")),
    Sketcher.Constraint("DistanceX", 35, 2, 43, 2, Q("2.3747 mm")),
    Sketcher.Constraint("DistanceX", 35, 2, 47, 2, Q("2.3747 mm")),
    Sketcher.Constraint("DistanceX", 46, 2, 53, 2, Q("1.6252 mm")),
    Sketcher.Constraint("Distance", 0, Q("0.623349 mm")),
    Sketcher.Constraint("Distance", 1, Q("1.960371 mm")),
    Sketcher.Constraint("Distance", 16, Q("3.610459 mm")),
    Sketcher.Constraint("Distance", 32, Q("1.623009 mm")),
    Sketcher.Constraint("Distance", 34, Q("1.85409 mm")),
    Sketcher.Constraint("Distance", 37, Q("1.44292 mm")),
    Sketcher.Constraint("DistanceX", 13, 1, 13, 2, Q("1.433093 mm")),
    Sketcher.Constraint("DistanceX", 28, 2, 28, 1, Q("0.628205 mm")),
    Sketcher.Constraint("DistanceX", 33, 1, 33, 2, Q("0.790865 mm")),
    Sketcher.Constraint("DistanceX", 39, 2, 39, 1, Q("0.628205 mm")),
    Sketcher.Constraint("DistanceX", 45, 1, 45, 2, Q("0.628205 mm")),
    Sketcher.Constraint("DistanceX", 53, 1, 53, 2, Q("0.996995 mm")),
    Sketcher.Constraint("DistanceX", 55, 1, 55, 2, Q("2.064103 mm")),
    Sketcher.Constraint("DistanceY", 12, 1, 12, 2, Q("0.583333 mm")),
    Sketcher.Constraint("DistanceY", 29, 1, 29, 2, Q("3.589744 mm")),
    Sketcher.Constraint("DistanceY", 48, 1, 48, 2, Q("1.346154 mm")),
    Sketcher.Constraint("DistanceX", 0, 2, -1, 1, Q("7.238381 mm")),
    Sketcher.Constraint("DistanceX", 6, 2, -1, 1, Q("6.682392 mm")),
    Sketcher.Constraint("DistanceX", -1, 1, 34, 2, Q("2.38101 mm")),
    Sketcher.Constraint("DistanceX", -1, 1, 54, 2, Q("6.955128 mm")),
    Sketcher.Constraint("DistanceX", 6, 2, 13, 2, Q("2.461639 mm")),
    Sketcher.Constraint("DistanceX", 12, 2, 14, 2, Q("0.143029 mm")),
    Sketcher.Constraint("DistanceY", 12, 2, 14, 2, Q("2.725962 mm")),
    Sketcher.Constraint("DistanceX", 14, 2, 15, 2, Q("0.556691 mm")),
])
pocket1 = doc.addObject("PartDesign::Pocket", "Pocket")
body.addObject(pocket1)
pocket1.Profile = sketch2
pocket1.Length = Q("0.9 in")
pocket1.Reversed = True

doc.recompute()
